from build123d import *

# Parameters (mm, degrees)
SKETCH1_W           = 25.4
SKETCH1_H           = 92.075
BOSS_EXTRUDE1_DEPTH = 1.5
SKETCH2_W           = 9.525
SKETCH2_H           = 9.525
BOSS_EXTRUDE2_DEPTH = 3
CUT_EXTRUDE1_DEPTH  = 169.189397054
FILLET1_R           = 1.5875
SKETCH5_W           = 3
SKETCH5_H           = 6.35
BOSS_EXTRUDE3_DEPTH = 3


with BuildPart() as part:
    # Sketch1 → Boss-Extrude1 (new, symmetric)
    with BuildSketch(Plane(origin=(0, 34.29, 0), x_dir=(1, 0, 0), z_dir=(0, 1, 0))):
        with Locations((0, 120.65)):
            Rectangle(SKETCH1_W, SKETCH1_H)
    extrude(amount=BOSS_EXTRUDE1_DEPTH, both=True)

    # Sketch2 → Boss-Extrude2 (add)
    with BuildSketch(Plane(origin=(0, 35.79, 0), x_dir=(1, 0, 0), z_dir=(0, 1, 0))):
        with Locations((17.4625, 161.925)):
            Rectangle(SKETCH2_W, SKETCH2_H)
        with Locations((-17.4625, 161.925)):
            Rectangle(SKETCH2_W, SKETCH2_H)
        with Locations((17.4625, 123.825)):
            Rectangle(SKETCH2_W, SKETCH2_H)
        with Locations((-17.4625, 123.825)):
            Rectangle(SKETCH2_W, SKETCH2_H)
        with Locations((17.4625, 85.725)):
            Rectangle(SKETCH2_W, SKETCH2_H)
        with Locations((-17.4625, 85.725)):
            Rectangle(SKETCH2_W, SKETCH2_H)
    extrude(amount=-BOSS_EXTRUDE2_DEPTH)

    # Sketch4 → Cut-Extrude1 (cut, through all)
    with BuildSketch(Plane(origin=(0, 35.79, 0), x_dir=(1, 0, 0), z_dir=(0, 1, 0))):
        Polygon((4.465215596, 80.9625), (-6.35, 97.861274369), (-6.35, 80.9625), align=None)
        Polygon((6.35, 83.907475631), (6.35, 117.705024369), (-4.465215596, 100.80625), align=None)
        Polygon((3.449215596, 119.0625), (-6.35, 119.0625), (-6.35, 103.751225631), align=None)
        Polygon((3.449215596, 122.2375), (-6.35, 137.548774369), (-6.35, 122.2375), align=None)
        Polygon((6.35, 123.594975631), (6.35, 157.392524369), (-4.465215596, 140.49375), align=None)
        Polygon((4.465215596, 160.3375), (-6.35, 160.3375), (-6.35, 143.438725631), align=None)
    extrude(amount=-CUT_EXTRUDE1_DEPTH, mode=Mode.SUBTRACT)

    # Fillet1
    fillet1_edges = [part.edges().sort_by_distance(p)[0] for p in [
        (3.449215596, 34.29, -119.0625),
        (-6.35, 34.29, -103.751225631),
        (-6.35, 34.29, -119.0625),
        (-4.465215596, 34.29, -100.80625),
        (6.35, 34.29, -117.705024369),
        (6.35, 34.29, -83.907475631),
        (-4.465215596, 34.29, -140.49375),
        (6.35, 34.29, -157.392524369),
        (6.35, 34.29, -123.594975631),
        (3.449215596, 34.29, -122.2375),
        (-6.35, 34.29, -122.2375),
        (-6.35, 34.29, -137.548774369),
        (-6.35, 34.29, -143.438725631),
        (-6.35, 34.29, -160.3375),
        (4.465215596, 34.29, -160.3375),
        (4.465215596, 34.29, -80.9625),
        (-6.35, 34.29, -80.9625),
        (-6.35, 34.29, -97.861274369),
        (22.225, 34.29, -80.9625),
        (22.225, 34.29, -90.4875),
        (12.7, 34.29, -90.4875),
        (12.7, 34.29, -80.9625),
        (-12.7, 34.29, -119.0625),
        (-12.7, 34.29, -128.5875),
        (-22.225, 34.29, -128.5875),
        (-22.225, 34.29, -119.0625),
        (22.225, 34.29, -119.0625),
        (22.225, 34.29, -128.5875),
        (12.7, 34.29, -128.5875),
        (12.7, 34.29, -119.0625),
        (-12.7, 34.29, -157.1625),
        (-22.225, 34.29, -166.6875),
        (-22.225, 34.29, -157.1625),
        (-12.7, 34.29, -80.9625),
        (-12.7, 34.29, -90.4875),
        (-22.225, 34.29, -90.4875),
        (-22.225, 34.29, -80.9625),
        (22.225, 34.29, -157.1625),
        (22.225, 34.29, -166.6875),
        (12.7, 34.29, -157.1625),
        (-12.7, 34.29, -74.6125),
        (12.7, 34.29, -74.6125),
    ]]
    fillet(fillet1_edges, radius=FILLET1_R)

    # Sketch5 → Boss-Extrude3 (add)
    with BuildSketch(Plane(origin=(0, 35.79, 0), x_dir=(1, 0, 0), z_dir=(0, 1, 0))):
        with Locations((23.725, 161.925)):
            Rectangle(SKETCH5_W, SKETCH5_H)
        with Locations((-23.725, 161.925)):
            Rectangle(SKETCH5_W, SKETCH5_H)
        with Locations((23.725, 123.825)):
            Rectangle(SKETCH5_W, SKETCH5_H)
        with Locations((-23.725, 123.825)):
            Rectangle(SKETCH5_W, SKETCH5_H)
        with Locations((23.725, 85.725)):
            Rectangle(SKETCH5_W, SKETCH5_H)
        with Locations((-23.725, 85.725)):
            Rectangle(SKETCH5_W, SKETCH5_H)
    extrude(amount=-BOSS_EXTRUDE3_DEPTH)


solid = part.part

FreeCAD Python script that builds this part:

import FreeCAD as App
import Part
import Sketcher

V = App.Vector
Q = App.Units.Quantity


def edges_at(feature, points):
    """Names of the edges that pass closest to the given points."""
    edges = feature.Shape.Edges
    near = lambda p: min(range(len(edges)), key=lambda i: edges[i].distToShape(Part.Vertex(*p))[0])
    return sorted({f"Edge{near(p) + 1}" for p in points})

doc = App.newDocument("Part")
body = doc.addObject("PartDesign::Body", "Body")

sketch1 = body.newObject("Sketcher::SketchObject", "Sketch")
sketch1.AttachmentSupport = (doc.getObject("XZ_Plane"), [""])
sketch1.MapMode = "FlatFace"
sketch1.AttachmentOffset = App.Placement(V(0, 0, -1.35 * 25.4), App.Rotation())
sketch1.addGeometry([
    Part.LineSegment(V(-13, -167, 0), V(-13, -75, 0)),
    Part.LineSegment(V(-13, -75, 0), V(13, -75, 0)),
    Part.LineSegment(V(13, -75, 0), V(13, -167, 0)),
    Part.LineSegment(V(13, -167, 0), V(-13, -167, 0)),
], False)
sketch1.addConstraint([
    Sketcher.Constraint("Coincident", 0, 2, 1, 1),
    Sketcher.Constraint("Coincident", 1, 2, 2, 1),
    Sketcher.Constraint("Coincident", 2, 2, 3, 1),
    Sketcher.Constraint("Coincident", 3, 2, 0, 1),
    Sketcher.Constraint("Vertical", 0),
    Sketcher.Constraint("Horizontal", 1),
    Sketcher.Constraint("Vertical", 2),
    Sketcher.Constraint("Horizontal", 3),
    Sketcher.Constraint("DistanceX", 1, 1, 1, 2, Q("1 in")),
    Sketcher.Constraint("DistanceX", 0, 2, -1, 1, Q("0.5 in")),
    Sketcher.Constraint("DistanceY", 0, 1, 0, 2, Q("3.625 in")),
    Sketcher.Constraint("DistanceY", 0, 2, -1, 1, Q("2.9375 in")),
])
pad1 = body.newObject("PartDesign::Pad", "Pad")
pad1.Profile = sketch1
pad1.Length = 3
pad1.Midplane = True

sketch2 = body.newObject("Sketcher::SketchObject", "Sketch001")
sketch2.AttachmentSupport = (doc.getObject("XZ_Plane"), [""])
sketch2.MapMode = "FlatFace"
sketch2.AttachmentOffset = App.Placement(V(0, 0, -35.79), App.Rotation())
sketch2.addGeometry([
    Part.LineSegment(V(13, -167, 0), V(13, -157, 0)),
    Part.LineSegment(V(13, -157, 0), V(22, -157, 0)),
    Part.LineSegment(V(22, -157, 0), V(22, -167, 0)),
    Part.LineSegment(V(22, -167, 0), V(13, -167, 0)),
    Part.LineSegment(V(-22, -167, 0), V(-22, -157, 0)),
    Part.LineSegment(V(-22, -157, 0), V(-13, -157, 0)),
    Part.LineSegment(V(-13, -157, 0), V(-13, -167, 0)),
    Part.LineSegment(V(-13, -167, 0), V(-22, -167, 0)),
    Part.LineSegment(V(13, -129, 0), V(13, -119, 0)),
    Part.LineSegment(V(13, -119, 0), V(22, -119, 0)),
    Part.LineSegment(V(22, -119, 0), V(22, -129, 0)),
    Part.LineSegment(V(22, -129, 0), V(13, -129, 0)),
    Part.LineSegment(V(-22, -129, 0), V(-22, -119, 0)),
    Part.LineSegment(V(-22, -119, 0), V(-13, -119, 0)),
    Part.LineSegment(V(-13, -119, 0), V(-13, -129, 0)),
    Part.LineSegment(V(-13, -129, 0), V(-22, -129, 0)),
    Part.LineSegment(V(13, -90, 0), V(13, -81, 0)),
    Part.LineSegment(V(13, -81, 0), V(22, -81, 0)),
    Part.LineSegment(V(22, -81, 0), V(22, -90, 0)),
    Part.LineSegment(V(22, -90, 0), V(13, -90, 0)),
    Part.LineSegment(V(-22, -90, 0), V(-22, -81, 0)),
    Part.LineSegment(V(-22, -81, 0), V(-13, -81, 0)),
    Part.LineSegment(V(-13, -81, 0), V(-13, -90, 0)),
    Part.LineSegment(V(-13, -90, 0), V(-22, -90, 0)),
], False)
sketch2.addConstraint([
    Sketcher.Constraint("Coincident", 0, 2, 1, 1),
    Sketcher.Constraint("Coincident", 1, 2, 2, 1),
    Sketcher.Constraint("Coincident", 2, 2, 3, 1),
    Sketcher.Constraint("Coincident", 3, 2, 0, 1),
    Sketcher.Constraint("Coincident", 4, 2, 5, 1),
    Sketcher.Constraint("Coincident", 5, 2, 6, 1),
    Sketcher.Constraint("Coincident", 6, 2, 7, 1),
    Sketcher.Constraint("Coincident", 7, 2, 4, 1),
    Sketcher.Constraint("Coincident", 8, 2, 9, 1),
    Sketcher.Constraint("Coincident", 9, 2, 10, 1),
    Sketcher.Constraint("Coincident", 10, 2, 11, 1),
    Sketcher.Constraint("Coincident", 11, 2, 8, 1),
    Sketcher.Constraint("Coincident", 12, 2, 13, 1),
    Sketcher.Constraint("Coincident", 13, 2, 14, 1),
    Sketcher.Constraint("Coincident", 14, 2, 15, 1),
    Sketcher.Constraint("Coincident", 15, 2, 12, 1),
    Sketcher.Constraint("Coincident", 16, 2, 17, 1),
    Sketcher.Constraint("Coincident", 17, 2, 18, 1),
    Sketcher.Constraint("Coincident", 18, 2, 19, 1),
    Sketcher.Constraint("Coincident", 19, 2, 16, 1),
    Sketcher.Constraint("Coincident", 20, 2, 21, 1),
    Sketcher.Constraint("Coincident", 21, 2, 22, 1),
    Sketcher.Constraint("Coincident", 22, 2, 23, 1),
    Sketcher.Constraint("Coincident", 23, 2, 20, 1),
    Sketcher.Constraint("Vertical", 0),
    Sketcher.Constraint("Horizontal", 1),
    Sketcher.Constraint("Vertical", 2),
    Sketcher.Constraint("Horizontal", 3),
    Sketcher.Constraint("Vertical", 4),
    Sketcher.Constraint("Horizontal", 5),
    Sketcher.Constraint("Vertical", 6),
    Sketcher.Constraint("Horizontal", 7),
    Sketcher.Constraint("Vertical", 8),
    Sketcher.Constraint("Horizontal", 9),
    Sketcher.Constraint("Vertical", 10),
    Sketcher.Constraint("Horizontal", 11),
    Sketcher.Constraint("Vertical", 12),
    Sketcher.Constraint("Horizontal", 13),
    Sketcher.Constraint("Vertical", 14),
    Sketcher.Constraint("Horizontal", 15),
    Sketcher.Constraint("Vertical", 16),
    Sketcher.Constraint("Horizontal", 17),
    Sketcher.Constraint("Vertical", 18),
    Sketcher.Constraint("Horizontal", 19),
    Sketcher.Constraint("Vertical", 20),
    Sketcher.Constraint("Horizontal", 21),
    Sketcher.Constraint("Vertical", 22),
    Sketcher.Constraint("Horizontal", 23),
    Sketcher.Constraint("Symmetric", 1, 2, 4, 2, -2),
    Sketcher.Constraint("Symmetric", 3, 2, 6, 2, -2),
    Sketcher.Constraint("Symmetric", 9, 2, 12, 2, -2),
    Sketcher.Constraint("Symmetric", 11, 2, 14, 2, -2),
    Sketcher.Constraint("Symmetric", 17, 2, 20, 2, -2),
    Sketcher.Constraint("Symmetric", 19, 2, 22, 2, -2),
    Sketcher.Constraint("Vertical", 3, 2, 8, 2),
    Sketcher.Constraint("Vertical", 2, 2, 9, 2),
    Sketcher.Constraint("Vertical", 11, 2, 16, 2),
    Sketcher.Constraint("Vertical", 10, 2, 17, 2),
    Sketcher.Constraint("Equal", 23, 0),
    Sketcher.Constraint("Equal", 6, 8),
    Sketcher.Constraint("Equal", 14, 16),
    Sketcher.Constraint("DistanceX", 5, 2, 0, 2, Q("1 in")),
    Sketcher.Constraint("DistanceY", 0, 2, 8, 2, Q("1.5 in")),
    Sketcher.Constraint("DistanceY", 8, 2, 16, 2, Q("1.5 in")),
    Sketcher.Constraint("DistanceX", 1, 1, 1, 2, Q("0.375 in")),
    Sketcher.Constraint("DistanceY", 0, 2, -1, 1, Q("6.1875 in")),
])
pad2 = body.newObject("PartDesign::Pad", "Pad001")
pad2.Profile = sketch2
pad2.Length = 3

sketch3 = body.newObject("Sketcher::SketchObject", "Sketch002")
sketch3.AttachmentSupport = (doc.getObject("XZ_Plane"), [""])
sketch3.MapMode = "FlatFace"
sketch3.AttachmentOffset = App.Placement(V(0, 0, -35.79), App.Rotation())
sketch3.addGeometry([
    Part.LineSegment(V(4, -81, 0), V(-6, -98, 0)),
    Part.LineSegment(V(-6, -98, 0), V(-6, -81, 0)),
    Part.LineSegment(V(-6, -81, 0), V(4, -81, 0)),
    Part.LineSegment(V(6, -84, 0), V(6, -118, 0)),
    Part.LineSegment(V(6, -118, 0), V(-4, -101, 0)),
    Part.LineSegment(V(-4, -101, 0), V(6, -84, 0)),
    Part.LineSegment(V(3, -119, 0), V(-6, -119, 0)),
    Part.LineSegment(V(-6, -119, 0), V(-6, -104, 0)),
    Part.LineSegment(V(-6, -104, 0), V(3, -119, 0)),
    Part.LineSegment(V(3, -122, 0), V(-6, -138, 0)),
    Part.LineSegment(V(-6, -138, 0), V(-6, -122, 0)),
    Part.LineSegment(V(-6, -122, 0), V(3, -122, 0)),
    Part.LineSegment(V(6, -124, 0), V(6, -157, 0)),
    Part.LineSegment(V(6, -157, 0), V(-4, -140, 0)),
    Part.LineSegment(V(-4, -140, 0), V(6, -124, 0)),
    Part.LineSegment(V(4, -160, 0), V(-6, -160, 0)),
    Part.LineSegment(V(-6, -160, 0), V(-6, -143, 0)),
    Part.LineSegment(V(-6, -143, 0), V(4, -160, 0)),
], False)
sketch3.addConstraint([
    Sketcher.Constraint("Coincident", 0, 2, 1, 1),
    Sketcher.Constraint("Coincident", 1, 2, 2, 1),
    Sketcher.Constraint("Coincident", 2, 2, 0, 1),
    Sketcher.Constraint("Coincident", 3, 2, 4, 1),
    Sketcher.Constraint("Coincident", 4, 2, 5, 1),
    Sketcher.Constraint("Coincident", 5, 2, 3, 1),
    Sketcher.Constraint("Coincident", 6, 2, 7, 1),
    Sketcher.Constraint("Coincident", 7, 2, 8, 1),
    Sketcher.Constraint("Coincident", 8, 2, 6, 1),
    Sketcher.Constraint("Coincident", 9, 2, 10, 1),
    Sketcher.Constraint("Coincident", 10, 2, 11, 1),
    Sketcher.Constraint("Coincident", 11, 2, 9, 1),
    Sketcher.Constraint("Coincident", 12, 2, 13, 1),
    Sketcher.Constraint("Coincident", 13, 2, 14, 1),
    Sketcher.Constraint("Coincident", 14, 2, 12, 1),
    Sketcher.Constraint("Coincident", 15, 2, 16, 1),
    Sketcher.Constraint("Coincident", 16, 2, 17, 1),
    Sketcher.Constraint("Coincident", 17, 2, 15, 1),
    Sketcher.Constraint("Vertical", 1),
    Sketcher.Constraint("Horizontal", 2),
    Sketcher.Constraint("Vertical", 3),
    Sketcher.Constraint("Horizontal", 6),
    Sketcher.Constraint("Vertical", 7),
    Sketcher.Constraint("Vertical", 10),
    Sketcher.Constraint("Horizontal", 11),
    Sketcher.Constraint("Vertical", 12),
    Sketcher.Constraint("Horizontal", 15),
    Sketcher.Constraint("Vertical", 16),
    Sketcher.Constraint("Parallel", 0, 5),
    Sketcher.Constraint("Parallel", 4, 8),
    Sketcher.Constraint("Parallel", 5, 9),
    Sketcher.Constraint("Parallel", 8, 13),
    Sketcher.Constraint("Parallel", 9, 14),
    Sketcher.Constraint("Parallel", 13, 17),
    Sketcher.Constraint("Vertical", 1, 2, 6, 2),
    Sketcher.Constraint("Vertical", 7, 2, 9, 2),
    Sketcher.Constraint("Vertical", 8, 2, 11, 2),
    Sketcher.Constraint("Vertical", 5, 2, 12, 2),
    Sketcher.Constraint("Vertical", 4, 2, 13, 2),
    Sketcher.Constraint("Vertical", 10, 2, 15, 2),
    Sketcher.Constraint("Vertical", 2, 2, 17, 2),
    Sketcher.Constraint("Equal", 7, 10),
    Sketcher.Constraint("Equal", 0, 4),
    Sketcher.Constraint("DistanceX", 0, 2, 3, 2, Q("0.5 in")),
    Sketcher.Constraint("DistanceY", 6, 2, 1, 2, Q("1.5 in")),
    Sketcher.Constraint("DistanceY", 15, 2, 10, 2, Q("1.5 in")),
    Sketcher.Constraint("DistanceX", 0, 2, -1, 1, Q("0.25 in")),
    Sketcher.Constraint("DistanceY", 1, 2, -1, 1, Q("3.1875 in")),
    Sketcher.Constraint("DistanceY", 4, 2, -1, 1, Q("3.96875 in")),
    Sketcher.Constraint("DistanceY", 10, 2, -1, 1, Q("4.8125 in")),
    Sketcher.Constraint("DistanceY", 13, 2, -1, 1, Q("5.53125 in")),
    Sketcher.Constraint("DistanceY", 9, 2, 3, 2, Q("0.78125 in")),
    Sketcher.Constraint("DistanceY", 3, 2, 3, 1, 33.797549),
    Sketcher.Constraint("Distance", 8, 18.178552),
])
pocket1 = body.newObject("PartDesign::Pocket", "Pocket")
pocket1.Profile = sketch3
pocket1.Type = "ThroughAll"
pocket1.Reversed = True
doc.recompute()

fillet = body.newObject("PartDesign::Fillet", "Fillet")
fillet.Base = (pocket1, edges_at(pocket1, [
    (3.449, 34.29, -119.062),
    (-6.35, 34.29, -103.751),
    (-6.35, 34.29, -119.062),
    (-4.465, 34.29, -100.806),
    (6.35, 34.29, -117.705),
    (6.35, 34.29, -83.907),
    (-4.465, 34.29, -140.494),
    (6.35, 34.29, -157.393),
    (6.35, 34.29, -123.595),
    (3.449, 34.29, -122.237),
    (-6.35, 34.29, -122.237),
    (-6.35, 34.29, -137.549),
    (-6.35, 34.29, -143.439),
    (-6.35, 34.29, -160.338),
    (4.465, 34.29, -160.338),
    (4.465, 34.29, -80.963),
    (-6.35, 34.29, -80.963),
    (-6.35, 34.29, -97.861),
    (22.225, 34.29, -80.963),
    (22.225, 34.29, -90.487),
    (12.7, 34.29, -90.487),
    (12.7, 34.29, -80.963),
    (-12.7, 34.29, -119.062),
    (-12.7, 34.29, -128.588),
    (-22.225, 34.29, -128.588),
    (-22.225, 34.29, -119.062),
    (22.225, 34.29, -119.062),
    (22.225, 34.29, -128.588),
    (12.7, 34.29, -128.588),
    (12.7, 34.29, -119.062),
    (-12.7, 34.29, -157.162),
    (-22.225, 34.29, -166.688),
    (-22.225, 34.29, -157.162),
    (-12.7, 34.29, -80.963),
    (-12.7, 34.29, -90.487),
    (-22.225, 34.29, -90.487),
    (-22.225, 34.29, -80.963),
    (22.225, 34.29, -157.162),
    (22.225, 34.29, -166.688),
    (12.7, 34.29, -157.162),
    (-12.7, 34.29, -74.612),
    (12.7, 34.29, -74.612),
]))
fillet.Radius = Q("0.0625 in")

sketch4 = body.newObject("Sketcher::SketchObject", "Sketch003")
sketch4.AttachmentSupport = (doc.getObject("XZ_Plane"), [""])
sketch4.MapMode = "FlatFace"
sketch4.AttachmentOffset = App.Placement(V(0, 0, -35.79), App.Rotation())
sketch4.addGeometry([
    Part.LineSegment(V(22.2, -165.1, 0), V(22.2, -158.8, 0)),
    Part.LineSegment(V(22.2, -158.8, 0), V(25.2, -158.8, 0)),
    Part.LineSegment(V(25.2, -158.8, 0), V(25.2, -165.1, 0)),
    Part.LineSegment(V(25.2, -165.1, 0), V(22.2, -165.1, 0)),
    Part.LineSegment(V(-25.2, -165.1, 0), V(-25.2, -158.8, 0)),
    Part.LineSegment(V(-25.2, -158.8, 0), V(-22.2, -158.8, 0)),
    Part.LineSegment(V(-22.2, -158.8, 0), V(-22.2, -165.1, 0)),
    Part.LineSegment(V(-22.2, -165.1, 0), V(-25.2, -165.1, 0)),
    Part.LineSegment(V(22.2, -127, 0), V(22.2, -120.7, 0)),
    Part.LineSegment(V(22.2, -120.7, 0), V(25.2, -120.7, 0)),
    Part.LineSegment(V(25.2, -120.7, 0), V(25.2, -127, 0)),
    Part.LineSegment(V(25.2, -127, 0), V(22.2, -127, 0)),
    Part.LineSegment(V(-25.2, -127, 0), V(-25.2, -120.7, 0)),
    Part.LineSegment(V(-25.2, -120.7, 0), V(-22.2, -120.7, 0)),
    Part.LineSegment(V(-22.2, -120.7, 0), V(-22.2, -127, 0)),
    Part.LineSegment(V(-22.2, -127, 0), V(-25.2, -127, 0)),
    Part.LineSegment(V(22.2, -88.9, 0), V(22.2, -82.5, 0)),
    Part.LineSegment(V(22.2, -82.5, 0), V(25.2, -82.5, 0)),
    Part.LineSegment(V(25.2, -82.5, 0), V(25.2, -88.9, 0)),
    Part.LineSegment(V(25.2, -88.9, 0), V(22.2, -88.9, 0)),
    Part.LineSegment(V(-25.2, -88.9, 0), V(-25.2, -82.5, 0)),
    Part.LineSegment(V(-25.2, -82.5, 0), V(-22.2, -82.5, 0)),
    Part.LineSegment(V(-22.2, -82.5, 0), V(-22.2, -88.9, 0)),
    Part.LineSegment(V(-22.2, -88.9, 0), V(-25.2, -88.9, 0)),
], False)
sketch4.addConstraint([
    Sketcher.Constraint("Coincident", 0, 2, 1, 1),
    Sketcher.Constraint("Coincident", 1, 2, 2, 1),
    Sketcher.Constraint("Coincident", 2, 2, 3, 1),
    Sketcher.Constraint("Coincident", 3, 2, 0, 1),
    Sketcher.Constraint("Coincident", 4, 2, 5, 1),
    Sketcher.Constraint("Coincident", 5, 2, 6, 1),
    Sketcher.Constraint("Coincident", 6, 2, 7, 1),
    Sketcher.Constraint("Coincident", 7, 2, 4, 1),
    Sketcher.Constraint("Coincident", 8, 2, 9, 1),
    Sketcher.Constraint("Coincident", 9, 2, 10, 1),
    Sketcher.Constraint("Coincident", 10, 2, 11, 1),
    Sketcher.Constraint("Coincident", 11, 2, 8, 1),
    Sketcher.Constraint("Coincident", 12, 2, 13, 1),
    Sketcher.Constraint("Coincident", 13, 2, 14, 1),
    Sketcher.Constraint("Coincident", 14, 2, 15, 1),
    Sketcher.Constraint("Coincident", 15, 2, 12, 1),
    Sketcher.Constraint("Coincident", 16, 2, 17, 1),
    Sketcher.Constraint("Coincident", 17, 2, 18, 1),
    Sketcher.Constraint("Coincident", 18, 2, 19, 1),
    Sketcher.Constraint("Coincident", 19, 2, 16, 1),
    Sketcher.Constraint("Coincident", 20, 2, 21, 1),
    Sketcher.Constraint("Coincident", 21, 2, 22, 1),
    Sketcher.Constraint("Coincident", 22, 2, 23, 1),
    Sketcher.Constraint("Coincident", 23, 2, 20, 1),
    Sketcher.Constraint("Vertical", 0),
    Sketcher.Constraint("Horizontal", 1),
    Sketcher.Constraint("Vertical", 2),
    Sketcher.Constraint("Horizontal", 3),
    Sketcher.Constraint("Vertical", 4),
    Sketcher.Constraint("Horizontal", 5),
    Sketcher.Constraint("Vertical", 6),
    Sketcher.Constraint("Horizontal", 7),
    Sketcher.Constraint("Vertical", 8),
    Sketcher.Constraint("Horizontal", 9),
    Sketcher.Constraint("Vertical", 10),
    Sketcher.Constraint("Horizontal", 11),
    Sketcher.Constraint("Vertical", 12),
    Sketcher.Constraint("Horizontal", 13),
    Sketcher.Constraint("Vertical", 14),
    Sketcher.Constraint("Horizontal", 15),
    Sketcher.Constraint("Vertical", 16),
    Sketcher.Constraint("Horizontal", 17),
    Sketcher.Constraint("Vertical", 18),
    Sketcher.Constraint("Horizontal", 19),
    Sketcher.Constraint("Vertical", 20),
    Sketcher.Constraint("Horizontal", 21),
    Sketcher.Constraint("Vertical", 22),
    Sketcher.Constraint("Horizontal", 23),
    Sketcher.Constraint("Symmetric", 1, 2, 4, 2, -2),
    Sketcher.Constraint("Symmetric", 3, 2, 6, 2, -2),
    Sketcher.Constraint("Symmetric", 9, 2, 12, 2, -2),
    Sketcher.Constraint("Symmetric", 11, 2, 14, 2, -2),
    Sketcher.Constraint("Symmetric", 17, 2, 20, 2, -2),
    Sketcher.Constraint("Symmetric", 19, 2, 22, 2, -2),
    Sketcher.Constraint("Vertical", 3, 2, 8, 2),
    Sketcher.Constraint("Vertical", 2, 2, 9, 2),
    Sketcher.Constraint("Vertical", 11, 2, 16, 2),
    Sketcher.Constraint("Vertical", 10, 2, 17, 2),
    Sketcher.Constraint("Equal", 6, 8),
    Sketcher.Constraint("Equal", 14, 16),
    Sketcher.Constraint("DistanceY", 10, 2, -1, 1, Q("5 in")),
    Sketcher.Constraint("DistanceY", 0, 1, 0, 2, Q("0.25 in")),
    Sketcher.Constraint("DistanceY", 2, 2, -1, 1, Q("6.5 in")),
    Sketcher.Constraint("DistanceY", 18, 2, -1, 1, Q("3.5 in")),
    Sketcher.Constraint("DistanceX", 5, 2, 0, 2, Q("1.75 in")),
    Sketcher.Constraint("DistanceX", 1, 1, 1, 2, 3.0),
])
pad3 = body.newObject("PartDesign::Pad", "Pad002")
pad3.Profile = sketch4
pad3.Length = 3

doc.recompute()
